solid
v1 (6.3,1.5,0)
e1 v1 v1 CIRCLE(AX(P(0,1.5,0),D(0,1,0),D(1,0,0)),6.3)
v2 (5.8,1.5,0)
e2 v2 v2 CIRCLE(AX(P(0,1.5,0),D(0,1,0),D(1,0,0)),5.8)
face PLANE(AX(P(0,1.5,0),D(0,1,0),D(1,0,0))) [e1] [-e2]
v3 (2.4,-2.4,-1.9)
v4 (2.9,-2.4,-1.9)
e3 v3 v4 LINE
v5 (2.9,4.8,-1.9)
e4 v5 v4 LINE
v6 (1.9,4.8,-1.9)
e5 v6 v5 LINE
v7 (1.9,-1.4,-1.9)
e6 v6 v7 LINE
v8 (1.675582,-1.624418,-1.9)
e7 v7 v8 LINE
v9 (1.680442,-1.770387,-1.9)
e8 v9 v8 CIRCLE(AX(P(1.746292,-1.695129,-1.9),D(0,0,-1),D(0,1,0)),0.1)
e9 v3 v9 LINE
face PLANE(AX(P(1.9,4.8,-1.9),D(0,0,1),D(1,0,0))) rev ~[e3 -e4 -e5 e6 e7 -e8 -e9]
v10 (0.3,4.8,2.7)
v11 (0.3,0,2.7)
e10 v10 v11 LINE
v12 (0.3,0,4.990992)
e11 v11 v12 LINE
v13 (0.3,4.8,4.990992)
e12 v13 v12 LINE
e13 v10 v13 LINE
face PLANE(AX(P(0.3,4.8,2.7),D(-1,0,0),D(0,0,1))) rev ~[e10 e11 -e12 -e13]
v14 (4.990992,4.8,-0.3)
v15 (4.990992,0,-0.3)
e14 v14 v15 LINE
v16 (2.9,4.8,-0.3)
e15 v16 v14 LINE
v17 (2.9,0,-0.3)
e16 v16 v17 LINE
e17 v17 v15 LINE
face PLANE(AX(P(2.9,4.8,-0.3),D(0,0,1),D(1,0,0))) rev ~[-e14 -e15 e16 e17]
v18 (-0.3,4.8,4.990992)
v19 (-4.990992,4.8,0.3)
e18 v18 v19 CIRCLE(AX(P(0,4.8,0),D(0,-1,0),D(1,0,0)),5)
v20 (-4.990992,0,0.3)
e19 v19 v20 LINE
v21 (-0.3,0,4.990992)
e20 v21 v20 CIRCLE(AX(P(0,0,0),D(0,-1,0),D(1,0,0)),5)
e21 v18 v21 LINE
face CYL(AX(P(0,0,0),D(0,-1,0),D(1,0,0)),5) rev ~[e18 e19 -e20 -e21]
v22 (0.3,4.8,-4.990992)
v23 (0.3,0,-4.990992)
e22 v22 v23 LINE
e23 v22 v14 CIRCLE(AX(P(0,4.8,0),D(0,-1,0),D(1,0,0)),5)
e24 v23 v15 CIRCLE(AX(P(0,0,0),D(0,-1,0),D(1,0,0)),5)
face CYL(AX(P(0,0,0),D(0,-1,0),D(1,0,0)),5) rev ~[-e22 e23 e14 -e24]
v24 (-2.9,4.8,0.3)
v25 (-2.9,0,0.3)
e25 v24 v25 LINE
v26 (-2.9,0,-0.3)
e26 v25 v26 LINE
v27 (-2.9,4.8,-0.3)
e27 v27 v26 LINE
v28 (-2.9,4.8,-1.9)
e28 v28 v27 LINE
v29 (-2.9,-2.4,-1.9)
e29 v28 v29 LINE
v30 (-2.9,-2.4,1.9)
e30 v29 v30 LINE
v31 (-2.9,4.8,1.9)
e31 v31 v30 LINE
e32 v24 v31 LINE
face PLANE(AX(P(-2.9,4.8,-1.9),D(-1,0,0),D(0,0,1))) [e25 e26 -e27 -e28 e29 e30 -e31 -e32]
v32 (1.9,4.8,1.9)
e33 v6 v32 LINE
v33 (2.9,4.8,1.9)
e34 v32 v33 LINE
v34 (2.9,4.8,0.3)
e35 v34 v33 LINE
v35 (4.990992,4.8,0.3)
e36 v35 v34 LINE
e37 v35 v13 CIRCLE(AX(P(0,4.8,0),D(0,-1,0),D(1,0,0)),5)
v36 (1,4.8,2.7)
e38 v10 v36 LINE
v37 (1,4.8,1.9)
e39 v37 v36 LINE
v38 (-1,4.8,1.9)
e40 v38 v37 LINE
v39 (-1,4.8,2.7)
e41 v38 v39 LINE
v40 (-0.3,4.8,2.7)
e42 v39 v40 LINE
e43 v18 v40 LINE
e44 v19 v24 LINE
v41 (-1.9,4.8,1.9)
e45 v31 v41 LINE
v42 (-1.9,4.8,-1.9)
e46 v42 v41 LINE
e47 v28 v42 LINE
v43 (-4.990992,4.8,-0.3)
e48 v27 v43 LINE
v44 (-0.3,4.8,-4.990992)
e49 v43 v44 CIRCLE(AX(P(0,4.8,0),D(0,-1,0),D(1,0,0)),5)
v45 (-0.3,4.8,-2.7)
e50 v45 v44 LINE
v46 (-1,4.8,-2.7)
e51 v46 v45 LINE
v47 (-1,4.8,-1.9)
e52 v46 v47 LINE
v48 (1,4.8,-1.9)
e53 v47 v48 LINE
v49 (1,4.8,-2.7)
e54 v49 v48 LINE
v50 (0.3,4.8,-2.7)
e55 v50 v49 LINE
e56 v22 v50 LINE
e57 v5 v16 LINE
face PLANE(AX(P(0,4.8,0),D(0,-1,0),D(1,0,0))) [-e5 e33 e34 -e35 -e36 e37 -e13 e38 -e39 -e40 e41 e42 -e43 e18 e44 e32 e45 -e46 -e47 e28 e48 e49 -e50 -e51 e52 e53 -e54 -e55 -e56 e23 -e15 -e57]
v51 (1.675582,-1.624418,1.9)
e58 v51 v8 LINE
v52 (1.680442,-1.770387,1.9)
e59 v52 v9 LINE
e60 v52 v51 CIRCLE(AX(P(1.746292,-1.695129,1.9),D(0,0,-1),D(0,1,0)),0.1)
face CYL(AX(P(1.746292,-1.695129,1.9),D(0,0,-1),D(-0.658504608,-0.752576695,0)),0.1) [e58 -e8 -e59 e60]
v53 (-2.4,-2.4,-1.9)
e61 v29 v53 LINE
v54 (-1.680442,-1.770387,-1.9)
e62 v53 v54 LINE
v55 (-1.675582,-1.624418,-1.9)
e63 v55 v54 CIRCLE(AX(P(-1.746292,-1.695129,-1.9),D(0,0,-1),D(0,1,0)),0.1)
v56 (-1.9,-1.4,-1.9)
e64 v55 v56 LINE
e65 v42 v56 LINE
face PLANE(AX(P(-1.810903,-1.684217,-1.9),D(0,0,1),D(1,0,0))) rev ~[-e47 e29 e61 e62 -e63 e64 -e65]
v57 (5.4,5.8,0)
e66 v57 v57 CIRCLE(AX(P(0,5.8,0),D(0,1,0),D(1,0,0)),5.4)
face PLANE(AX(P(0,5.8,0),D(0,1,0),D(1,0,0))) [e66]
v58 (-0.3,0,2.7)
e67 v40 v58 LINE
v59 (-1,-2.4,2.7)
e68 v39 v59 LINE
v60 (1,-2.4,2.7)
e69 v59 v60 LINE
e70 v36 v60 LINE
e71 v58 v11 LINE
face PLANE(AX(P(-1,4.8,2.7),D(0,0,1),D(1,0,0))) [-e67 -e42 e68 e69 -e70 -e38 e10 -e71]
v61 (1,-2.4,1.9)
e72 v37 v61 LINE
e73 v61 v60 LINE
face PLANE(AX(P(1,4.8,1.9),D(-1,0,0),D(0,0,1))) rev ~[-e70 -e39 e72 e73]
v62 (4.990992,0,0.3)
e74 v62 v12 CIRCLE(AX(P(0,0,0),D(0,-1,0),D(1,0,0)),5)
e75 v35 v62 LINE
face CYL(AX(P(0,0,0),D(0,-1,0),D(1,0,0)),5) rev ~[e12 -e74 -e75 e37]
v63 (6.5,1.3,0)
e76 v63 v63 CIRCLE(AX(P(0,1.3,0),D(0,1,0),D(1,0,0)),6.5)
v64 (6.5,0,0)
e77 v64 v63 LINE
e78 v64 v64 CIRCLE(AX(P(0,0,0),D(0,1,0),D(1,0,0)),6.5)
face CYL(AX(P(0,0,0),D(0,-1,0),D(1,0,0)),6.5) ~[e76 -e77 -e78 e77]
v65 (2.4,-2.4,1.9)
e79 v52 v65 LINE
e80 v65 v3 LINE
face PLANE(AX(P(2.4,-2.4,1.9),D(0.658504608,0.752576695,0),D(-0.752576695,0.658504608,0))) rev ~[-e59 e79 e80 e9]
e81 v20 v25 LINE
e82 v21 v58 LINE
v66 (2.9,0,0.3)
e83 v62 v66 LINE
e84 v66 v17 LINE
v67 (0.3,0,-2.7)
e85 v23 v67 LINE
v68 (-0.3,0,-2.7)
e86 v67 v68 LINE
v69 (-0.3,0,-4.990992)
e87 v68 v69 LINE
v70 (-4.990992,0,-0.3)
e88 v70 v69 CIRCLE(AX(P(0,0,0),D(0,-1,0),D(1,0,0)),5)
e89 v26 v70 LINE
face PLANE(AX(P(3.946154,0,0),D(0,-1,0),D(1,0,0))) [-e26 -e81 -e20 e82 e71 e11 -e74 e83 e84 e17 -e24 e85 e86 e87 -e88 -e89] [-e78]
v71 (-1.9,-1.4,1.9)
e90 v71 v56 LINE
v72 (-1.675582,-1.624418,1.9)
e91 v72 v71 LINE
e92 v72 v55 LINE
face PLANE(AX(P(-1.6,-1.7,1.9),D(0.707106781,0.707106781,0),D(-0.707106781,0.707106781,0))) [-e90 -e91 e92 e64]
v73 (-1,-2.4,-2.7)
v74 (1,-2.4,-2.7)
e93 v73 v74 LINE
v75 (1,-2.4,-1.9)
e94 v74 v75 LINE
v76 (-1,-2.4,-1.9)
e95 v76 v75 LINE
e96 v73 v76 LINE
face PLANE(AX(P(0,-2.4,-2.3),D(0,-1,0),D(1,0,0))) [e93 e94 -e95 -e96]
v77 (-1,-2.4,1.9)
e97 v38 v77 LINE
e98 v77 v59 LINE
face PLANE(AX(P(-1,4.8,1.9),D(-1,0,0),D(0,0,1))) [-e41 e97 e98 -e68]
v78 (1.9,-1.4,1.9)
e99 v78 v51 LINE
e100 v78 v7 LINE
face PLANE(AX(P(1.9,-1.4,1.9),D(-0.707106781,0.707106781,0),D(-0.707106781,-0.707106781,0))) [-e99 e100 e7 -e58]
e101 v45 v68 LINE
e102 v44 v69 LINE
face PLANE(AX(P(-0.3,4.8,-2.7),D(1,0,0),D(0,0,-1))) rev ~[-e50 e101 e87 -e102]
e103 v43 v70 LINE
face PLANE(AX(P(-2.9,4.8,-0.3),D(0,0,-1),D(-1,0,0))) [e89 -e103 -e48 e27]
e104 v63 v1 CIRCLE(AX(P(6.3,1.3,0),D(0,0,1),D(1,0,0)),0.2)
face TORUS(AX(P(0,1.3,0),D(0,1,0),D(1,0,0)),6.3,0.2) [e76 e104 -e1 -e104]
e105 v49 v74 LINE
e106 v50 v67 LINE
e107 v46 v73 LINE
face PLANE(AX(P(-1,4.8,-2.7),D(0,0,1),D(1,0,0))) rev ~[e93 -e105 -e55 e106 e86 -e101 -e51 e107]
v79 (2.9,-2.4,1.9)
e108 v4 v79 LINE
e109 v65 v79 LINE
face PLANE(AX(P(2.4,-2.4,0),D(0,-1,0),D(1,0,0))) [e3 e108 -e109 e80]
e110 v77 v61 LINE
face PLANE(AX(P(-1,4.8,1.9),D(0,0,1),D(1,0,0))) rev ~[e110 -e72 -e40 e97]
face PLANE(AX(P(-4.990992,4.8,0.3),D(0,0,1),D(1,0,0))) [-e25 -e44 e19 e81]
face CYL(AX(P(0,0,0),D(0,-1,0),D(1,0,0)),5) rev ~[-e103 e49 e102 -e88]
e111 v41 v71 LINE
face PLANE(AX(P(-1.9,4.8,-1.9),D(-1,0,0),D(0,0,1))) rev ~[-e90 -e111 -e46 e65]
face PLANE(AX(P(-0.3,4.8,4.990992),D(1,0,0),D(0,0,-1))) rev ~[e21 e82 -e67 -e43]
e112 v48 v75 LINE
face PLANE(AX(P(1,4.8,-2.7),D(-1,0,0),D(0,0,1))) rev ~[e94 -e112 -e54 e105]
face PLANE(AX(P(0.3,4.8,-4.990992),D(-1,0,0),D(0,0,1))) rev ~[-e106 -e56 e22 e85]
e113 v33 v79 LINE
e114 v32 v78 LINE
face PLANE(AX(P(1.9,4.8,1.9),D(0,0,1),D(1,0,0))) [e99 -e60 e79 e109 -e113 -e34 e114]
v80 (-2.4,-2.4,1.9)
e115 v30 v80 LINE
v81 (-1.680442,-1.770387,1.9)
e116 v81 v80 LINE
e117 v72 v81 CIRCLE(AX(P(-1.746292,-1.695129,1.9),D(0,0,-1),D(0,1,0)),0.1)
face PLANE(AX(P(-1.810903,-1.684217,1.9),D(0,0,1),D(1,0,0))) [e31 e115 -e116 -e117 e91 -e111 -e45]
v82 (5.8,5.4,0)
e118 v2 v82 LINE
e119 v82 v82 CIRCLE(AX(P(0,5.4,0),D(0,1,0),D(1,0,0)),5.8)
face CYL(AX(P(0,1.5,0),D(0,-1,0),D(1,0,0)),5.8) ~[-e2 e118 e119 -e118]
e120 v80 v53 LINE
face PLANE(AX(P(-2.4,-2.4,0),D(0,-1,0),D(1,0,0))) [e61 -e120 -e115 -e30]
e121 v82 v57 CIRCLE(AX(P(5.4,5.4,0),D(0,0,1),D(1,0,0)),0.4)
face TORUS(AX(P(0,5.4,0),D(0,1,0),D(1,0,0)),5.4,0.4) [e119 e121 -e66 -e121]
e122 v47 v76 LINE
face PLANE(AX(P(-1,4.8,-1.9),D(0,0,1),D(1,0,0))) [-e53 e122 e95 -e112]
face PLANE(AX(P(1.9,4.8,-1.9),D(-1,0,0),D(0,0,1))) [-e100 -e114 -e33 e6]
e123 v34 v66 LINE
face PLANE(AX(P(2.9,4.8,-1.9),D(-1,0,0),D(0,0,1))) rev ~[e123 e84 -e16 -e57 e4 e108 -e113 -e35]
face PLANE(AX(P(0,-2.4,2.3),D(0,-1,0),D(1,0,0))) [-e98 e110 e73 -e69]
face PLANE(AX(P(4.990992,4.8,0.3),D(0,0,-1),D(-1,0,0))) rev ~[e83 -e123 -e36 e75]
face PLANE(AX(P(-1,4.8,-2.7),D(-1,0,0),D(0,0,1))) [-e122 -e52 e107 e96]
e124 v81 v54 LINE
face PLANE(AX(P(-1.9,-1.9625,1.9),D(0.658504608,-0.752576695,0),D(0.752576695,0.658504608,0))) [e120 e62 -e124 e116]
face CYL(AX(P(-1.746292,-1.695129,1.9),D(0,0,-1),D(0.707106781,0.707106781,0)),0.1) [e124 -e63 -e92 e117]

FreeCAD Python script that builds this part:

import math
import FreeCAD as App
import Part
import Sketcher

V = App.Vector
Q = App.Units.Quantity


def edges_at(feature, points):
    """Names of the edges that pass closest to the given points."""
    edges = feature.Shape.Edges
    near = lambda p: min(range(len(edges)), key=lambda i: edges[i].distToShape(Part.Vertex(*p))[0])
    return sorted({f"Edge{near(p) + 1}" for p in points})


def add_polygon(sketch, points):
    """Adds a closed chain of lines whose ends are joined by coincident constraints."""
    first, n = sketch.GeometryCount, len(points)
    for a, b in zip(points, points[1:] + points[:1]):
        sketch.addGeometry(Part.LineSegment(App.Vector(*a, 0), App.Vector(*b, 0)), False)
    for i in range(n):
        sketch.addConstraint(Sketcher.Constraint("Coincident", first + i, 2, first + (i + 1) % n, 1))

doc = App.newDocument("Part")
body = doc.addObject("PartDesign::Body", "Body")

# Sketch on XZ plane
sketch1 = doc.addObject("Sketcher::SketchObject", "Sketch")
body.addObject(sketch1)
sketch1.AttachmentSupport = (doc.XZ_Plane, [""])
sketch1.MapMode = "FlatFace"
sketch1.addGeometry(Part.Circle(V(0, 0, 0), V(0, 0, 1), 6), False)
sketch1.addConstraint([
    Sketcher.Constraint("Coincident", 0, 3, -1, 1),
    Sketcher.Constraint("Diameter", 0, Q("13 mm")),
])
pad1 = doc.addObject("PartDesign::Pad", "Pad")
body.addObject(pad1)
pad1.Profile = sketch1
pad1.Length = 1.5
pad1.Reversed = True

# Sketch on XZ plane
sketch2 = doc.addObject("Sketcher::SketchObject", "Sketch001")
body.addObject(sketch2)
sketch2.AttachmentSupport = (doc.XZ_Plane, [""])
sketch2.MapMode = "FlatFace"
sketch2.AttachmentOffset = App.Placement(V(0, 0, -1.5), App.Rotation())
sketch2.addGeometry(Part.Circle(V(0, 0, 0), V(0, 0, 1), 6), False)
sketch2.addConstraint([
    Sketcher.Constraint("Coincident", 0, 3, -1, 1),
    Sketcher.Constraint("Diameter", 0, Q("11.6 mm")),
])
pad2 = doc.addObject("PartDesign::Pad", "Pad001")
body.addObject(pad2)
pad2.Profile = sketch2
pad2.Length = 4.3
pad2.Reversed = True
doc.recompute()

fillet = doc.addObject("PartDesign::Fillet", "Fillet")
body.addObject(fillet)
fillet.Base = (pad2, edges_at(pad2, [(-5.8, 5.8, 0)]))
fillet.Radius = 0.4

# Sketch on XZ plane
sketch3 = doc.addObject("Sketcher::SketchObject", "Sketch002")
body.addObject(sketch3)
sketch3.AttachmentSupport = (doc.XZ_Plane, [""])
sketch3.MapMode = "FlatFace"
sketch3.addGeometry(Part.Circle(V(0, 0, 0), V(0, 0, 1), 5), False)
sketch3.addConstraint([
    Sketcher.Constraint("Coincident", 0, 3, -1, 1),
    Sketcher.Constraint("Diameter", 0, Q("10 mm")),
])
pocket1 = doc.addObject("PartDesign::Pocket", "Pocket")
body.addObject(pocket1)
pocket1.Profile = sketch3
pocket1.Length = 4.8

# Sketch on XZ plane
sketch4 = doc.addObject("Sketcher::SketchObject", "Sketch003")
body.addObject(sketch4)
sketch4.AttachmentSupport = (doc.XZ_Plane, [""])
sketch4.MapMode = "FlatFace"
sketch4.AttachmentOffset = App.Placement(V(0, 0, -4.8), App.Rotation())
sketch4.addGeometry([
    Part.LineSegment(V(-2.9, 0.3, 0), V(-5, 0.3, 0)),  # 0
    Part.ArcOfCircle(Part.Circle(V(0, 0, 0), V(0, 0, 1), 5), math.radians(176.56), math.radians(183.44)),  # 1
    Part.LineSegment(V(-5, -0.3, 0), V(-2.9, -0.3, 0)),  # 2
    Part.LineSegment(V(-2.9, -0.3, 0), V(-2.9, 0.3, 0)),  # 3
    Part.LineSegment(V(2.9, 0.3, 0), V(2.9, -0.3, 0)),  # 4
    Part.LineSegment(V(2.9, -0.3, 0), V(5, -0.3, 0)),  # 5
    Part.ArcOfCircle(Part.Circle(V(0, 0, 0), V(0, 0, 1), 5), math.radians(-3.44), math.radians(3.44)),  # 6
    Part.LineSegment(V(5, 0.3, 0), V(2.9, 0.3, 0)),  # 7
    Part.LineSegment(V(-0.3, 5, 0), V(-0.3, 2.7, 0)),  # 8
    Part.LineSegment(V(-0.3, 2.7, 0), V(0.3, 2.7, 0)),  # 9
    Part.LineSegment(V(0.3, 2.7, 0), V(0.3, 5, 0)),  # 10
    Part.ArcOfCircle(Part.Circle(V(0, 0, 0), V(0, 0, 1), 5), math.radians(86.56), math.radians(93.44)),  # 11
    Part.LineSegment(V(0.3, -2.7, 0), V(-0.3, -2.7, 0)),  # 12
    Part.LineSegment(V(-0.3, -2.7, 0), V(-0.3, -5, 0)),  # 13
    Part.ArcOfCircle(Part.Circle(V(0, 0, 0), V(0, 0, 1), 5), math.radians(-93.44), math.radians(-86.56)),  # 14
    Part.LineSegment(V(0.3, -5, 0), V(0.3, -2.7, 0)),  # 15
], False)
sketch4.addConstraint([
    Sketcher.Constraint("Coincident", 0, 2, 1, 1),
    Sketcher.Constraint("Coincident", 1, 2, 2, 1),
    Sketcher.Constraint("Coincident", 2, 2, 3, 1),
    Sketcher.Constraint("Coincident", 3, 2, 0, 1),
    Sketcher.Constraint("Coincident", 4, 2, 5, 1),
    Sketcher.Constraint("Coincident", 5, 2, 6, 1),
    Sketcher.Constraint("Coincident", 6, 2, 7, 1),
    Sketcher.Constraint("Coincident", 7, 2, 4, 1),
    Sketcher.Constraint("Coincident", 8, 2, 9, 1),
    Sketcher.Constraint("Coincident", 9, 2, 10, 1),
    Sketcher.Constraint("Coincident", 10, 2, 11, 1),
    Sketcher.Constraint("Coincident", 11, 2, 8, 1),
    Sketcher.Constraint("Coincident", 12, 2, 13, 1),
    Sketcher.Constraint("Coincident", 13, 2, 14, 1),
    Sketcher.Constraint("Coincident", 14, 2, 15, 1),
    Sketcher.Constraint("Coincident", 15, 2, 12, 1),
    Sketcher.Constraint("Horizontal", 0),
    Sketcher.Constraint("Horizontal", 2),
    Sketcher.Constraint("Vertical", 3),
    Sketcher.Constraint("Vertical", 4),
    Sketcher.Constraint("Horizontal", 5),
    Sketcher.Constraint("Horizontal", 7),
    Sketcher.Constraint("Vertical", 8),
    Sketcher.Constraint("Horizontal", 9),
    Sketcher.Constraint("Vertical", 10),
    Sketcher.Constraint("Horizontal", 12),
    Sketcher.Constraint("Vertical", 13),
    Sketcher.Constraint("Vertical", 15),
    Sketcher.Constraint("Coincident", 1, 3, -1, 1),
    Sketcher.Constraint("Coincident", 6, 3, -1, 1),
    Sketcher.Constraint("Coincident", 11, 3, -1, 1),
    Sketcher.Constraint("Coincident", 14, 3, -1, 1),
    Sketcher.Constraint("Equal", 1, 6),
    Sketcher.Constraint("Equal", 6, 11),
    Sketcher.Constraint("Equal", 11, 14),
    Sketcher.Constraint("Symmetric", 3, 2, 4, 2, -1, 1),
    Sketcher.Constraint("Symmetric", 9, 2, 12, 2, -1, 1),
    Sketcher.Constraint("Horizontal", 2, 2, 4, 2),
    Sketcher.Constraint("Horizontal", 3, 2, 6, 2),
    Sketcher.Constraint("Horizontal", 10, 2, 11, 2),
    Sketcher.Constraint("Horizontal", 13, 2, 14, 2),
    Sketcher.Constraint("Equal", 12, 3),
    Sketcher.Constraint("Radius", 1, Q("5 mm")),
    Sketcher.Constraint("DistanceX", 9, 1, 9, 2, Q("0.6 mm")),
    Sketcher.Constraint("DistanceX", 2, 2, -1, 1, Q("2.9 mm")),
    Sketcher.Constraint("DistanceY", -1, 1, 8, 2, Q("2.7 mm")),
])
pad3 = doc.addObject("PartDesign::Pad", "Pad002")
body.addObject(pad3)
pad3.Profile = sketch4
pad3.Length = 4.8

# Sketch on XZ plane
sketch5 = doc.addObject("Sketcher::SketchObject", "Sketch004")
body.addObject(sketch5)
sketch5.AttachmentSupport = (doc.XZ_Plane, [""])
sketch5.MapMode = "FlatFace"
sketch5.AttachmentOffset = App.Placement(V(0, 0, -4.8), App.Rotation())
add_polygon(sketch5, [(-1, 2.7), (-1, 1.9), (1, 1.9), (1, 2.7)])  # lines 0-3
add_polygon(sketch5, [(-2.9, 1.9), (-2.9, -1.9), (-1.9, -1.9), (-1.9, 1.9)])  # lines 4-7
add_polygon(sketch5, [(1.9, 1.9), (1.9, -1.9), (2.9, -1.9), (2.9, 1.9)])  # lines 8-11
add_polygon(sketch5, [(-1, -1.9), (-1, -2.7), (1, -2.7), (1, -1.9)])  # lines 12-15
sketch5.addConstraint([
    Sketcher.Constraint("Vertical", 0),
    Sketcher.Constraint("Horizontal", 1),
    Sketcher.Constraint("Vertical", 2),
    Sketcher.Constraint("Horizontal", 3),
    Sketcher.Constraint("Vertical", 4),
    Sketcher.Constraint("Horizontal", 5),
    Sketcher.Constraint("Vertical", 6),
    Sketcher.Constraint("Horizontal", 7),
    Sketcher.Constraint("Vertical", 8),
    Sketcher.Constraint("Horizontal", 9),
    Sketcher.Constraint("Vertical", 10),
    Sketcher.Constraint("Horizontal", 11),
    Sketcher.Constraint("Vertical", 12),
    Sketcher.Constraint("Horizontal", 13),
    Sketcher.Constraint("Vertical", 14),
    Sketcher.Constraint("Horizontal", 15),
    Sketcher.Constraint("Symmetric", 6, 2, 8, 2, -1, 1),
    Sketcher.Constraint("Symmetric", 4, 2, 10, 2, -1, 1),
    Sketcher.Constraint("Symmetric", 2, 2, 12, 2, -1, 1),
    Sketcher.Constraint("Symmetric", 0, 2, 14, 2, -1, 1),
    Sketcher.Constraint("Horizontal", 1, 2, 6, 2),
    Sketcher.Constraint("Horizontal", 5, 2, 8, 2),
    Sketcher.Constraint("Vertical", 3, 2, 12, 2),
    Sketcher.Constraint("DistanceX", 1, 1, 1, 2, Q("2 mm")),
    Sketcher.Constraint("DistanceX", 5, 1, 5, 2, Q("1 mm")),
    Sketcher.Constraint("DistanceY", 0, 2, 0, 1, Q("0.8 mm")),
    Sketcher.Constraint("DistanceY", 4, 2, 4, 1, Q("3.8 mm")),
    Sketcher.Constraint("DistanceX", 4, 2, -1, 1, Q("2.9 mm")),
])
pad4 = doc.addObject("PartDesign::Pad", "Pad003")
body.addObject(pad4)
pad4.Profile = sketch5
pad4.Length = 7.2

# Sketch on XY plane
sketch6 = doc.addObject("Sketcher::SketchObject", "Sketch005")
body.addObject(sketch6)
sketch6.AttachmentSupport = (doc.XY_Plane, [""])
sketch6.MapMode = "FlatFace"
sketch6.AttachmentOffset = App.Placement(V(0, 0, 1.9), App.Rotation())
add_polygon(sketch6, [(-1.9, -2.4), (-1.9, -1.96), (-2.4, -2.4)])  # lines 0-2
sketch6.addConstraint([
    Sketcher.Constraint("Vertical", 0),
    Sketcher.Constraint("Horizontal", 2),
    Sketcher.Constraint("DistanceX", 2, 1, 2, 2, Q("0.5 mm")),
    Sketcher.Constraint("DistanceX", 0, 2, -1, 1, Q("1.9 mm")),
    Sketcher.Constraint("DistanceY", 1, 2, -1, 1, Q("2.4 mm")),
    Sketcher.Constraint("DistanceY", 0, 1, 0, 2, Q("0.4375 mm")),
])
pocket2 = doc.addObject("PartDesign::Pocket", "Pocket001")
body.addObject(pocket2)
pocket2.Profile = sketch6
pocket2.Type = "UpToFirst"

# Sketch on XY plane
sketch7 = doc.addObject("Sketcher::SketchObject", "Sketch006")
body.addObject(sketch7)
sketch7.AttachmentSupport = (doc.XY_Plane, [""])
sketch7.MapMode = "FlatFace"
sketch7.AttachmentOffset = App.Placement(V(0, 0, 1.9), App.Rotation())
add_polygon(sketch7, [(1.9, -1.96), (1.9, -2.4), (2.4, -2.4)])  # lines 0-2
sketch7.addConstraint([
    Sketcher.Constraint("Vertical", 0),
    Sketcher.Constraint("Horizontal", 1),
    Sketcher.Constraint("DistanceX", 1, 1, 1, 2, Q("0.5 mm")),
    Sketcher.Constraint("DistanceX", -1, 1, 0, 2, Q("1.9 mm")),
    Sketcher.Constraint("DistanceY", 0, 2, -1, 1, Q("2.4 mm")),
    Sketcher.Constraint("DistanceY", 0, 2, 0, 1, Q("0.4375 mm")),
])
pocket3 = doc.addObject("PartDesign::Pocket", "Pocket002")
body.addObject(pocket3)
pocket3.Profile = sketch7
pocket3.Type = "UpToFirst"

# Sketch on XY plane
sketch8 = doc.addObject("Sketcher::SketchObject", "Sketch007")
body.addObject(sketch8)
sketch8.AttachmentSupport = (doc.XY_Plane, [""])
sketch8.MapMode = "FlatFace"
sketch8.AttachmentOffset = App.Placement(V(0, 0, 1.9), App.Rotation())
add_polygon(sketch8, [(-1.6, -1.7), (-1.9, -1.4), (-1.9, -1.96)])  # lines 0-2
add_polygon(sketch8, [(1.6, -1.7), (1.9, -1.96), (1.9, -1.4)])  # lines 3-5
sketch8.addConstraint([
    Sketcher.Constraint("Vertical", 1),
    Sketcher.Constraint("Vertical", 4),
    Sketcher.Constraint("Symmetric", 1, 2, 3, 2, -2),
    Sketcher.Constraint("Symmetric", 2, 2, 5, 2, -2),
    Sketcher.Constraint("Perpendicular", 0, 5),
    Sketcher.Constraint("Horizontal", 0, 2, 4, 2),
    Sketcher.Constraint("DistanceX", 0, 2, -1, 1, Q("1.9 mm")),
    Sketcher.Constraint("DistanceY", 0, 2, -1, 1, Q("1.4 mm")),
    Sketcher.Constraint("DistanceX", 2, 2, -1, 1, Q("1.6 mm")),
    Sketcher.Constraint("DistanceY", 1, 2, 1, 1, Q("0.5625 mm")),
])
pad5 = doc.addObject("PartDesign::Pad", "Pad004")
body.addObject(pad5)
pad5.Profile = sketch8
pad5.Length = 3.8
pad5.Reversed = True
doc.recompute()

fillet2 = doc.addObject("PartDesign::Fillet", "Fillet001")
body.addObject(fillet2)
fillet2.Base = (pad5, edges_at(pad5, [(-1.6, -1.7, 0), (1.6, -1.7, 0)]))
fillet2.Radius = 0.1
doc.recompute()

fillet3 = doc.addObject("PartDesign::Fillet", "Fillet002")
body.addObject(fillet3)
fillet3.Base = (fillet2, edges_at(fillet2, [(-6.5, 1.5, 0)]))
fillet3.Radius = 0.2

doc.recompute()
